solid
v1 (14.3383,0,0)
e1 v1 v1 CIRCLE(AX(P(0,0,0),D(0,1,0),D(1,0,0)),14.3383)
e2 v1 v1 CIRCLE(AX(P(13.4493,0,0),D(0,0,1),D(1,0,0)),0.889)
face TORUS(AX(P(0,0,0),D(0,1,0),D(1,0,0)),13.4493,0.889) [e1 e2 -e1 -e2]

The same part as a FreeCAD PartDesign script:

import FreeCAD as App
import Part
import Sketcher

V = App.Vector
Q = App.Units.Quantity

doc = App.newDocument("Part")
params = doc.addObject("Spreadsheet::Sheet", "Params")
for row, (alias, value) in enumerate([
    ("sketch1_diameter", "0.07 in"),
    ("revolution_angle", "360 deg"),
], start=1):
    params.set(f"A{row}", alias)
    params.set(f"B{row}", "=" + value)
    params.setAlias(f"B{row}", alias)

body = doc.addObject("PartDesign::Body", "Body")

sketch1 = body.newObject("Sketcher::SketchObject", "Sketch")
sketch1.AttachmentSupport = (doc.getObject("XY_Plane"), [""])
sketch1.MapMode = "FlatFace"
sketch1.addGeometry(Part.Circle(V(13.4493, 0, 0), V(0, 0, 1), 0.889), False)
sketch1.addConstraint([
    Sketcher.Constraint("PointOnObject", 0, 3, -1),
    Sketcher.Constraint("Diameter", 0, Q("0.07 in")),
    Sketcher.Constraint("DistanceX", -1, 1, 0, 3, Q("0.5295 in")),
])
sketch1.setExpression("Constraints[1]", "Params.sketch1_diameter")
revolution = body.newObject("PartDesign::Revolution", "Revolution")
revolution.Profile = sketch1
revolution.ReferenceAxis = (sketch1, ["V_Axis"])
revolution.setExpression("Angle", "Params.revolution_angle")

doc.recompute()
